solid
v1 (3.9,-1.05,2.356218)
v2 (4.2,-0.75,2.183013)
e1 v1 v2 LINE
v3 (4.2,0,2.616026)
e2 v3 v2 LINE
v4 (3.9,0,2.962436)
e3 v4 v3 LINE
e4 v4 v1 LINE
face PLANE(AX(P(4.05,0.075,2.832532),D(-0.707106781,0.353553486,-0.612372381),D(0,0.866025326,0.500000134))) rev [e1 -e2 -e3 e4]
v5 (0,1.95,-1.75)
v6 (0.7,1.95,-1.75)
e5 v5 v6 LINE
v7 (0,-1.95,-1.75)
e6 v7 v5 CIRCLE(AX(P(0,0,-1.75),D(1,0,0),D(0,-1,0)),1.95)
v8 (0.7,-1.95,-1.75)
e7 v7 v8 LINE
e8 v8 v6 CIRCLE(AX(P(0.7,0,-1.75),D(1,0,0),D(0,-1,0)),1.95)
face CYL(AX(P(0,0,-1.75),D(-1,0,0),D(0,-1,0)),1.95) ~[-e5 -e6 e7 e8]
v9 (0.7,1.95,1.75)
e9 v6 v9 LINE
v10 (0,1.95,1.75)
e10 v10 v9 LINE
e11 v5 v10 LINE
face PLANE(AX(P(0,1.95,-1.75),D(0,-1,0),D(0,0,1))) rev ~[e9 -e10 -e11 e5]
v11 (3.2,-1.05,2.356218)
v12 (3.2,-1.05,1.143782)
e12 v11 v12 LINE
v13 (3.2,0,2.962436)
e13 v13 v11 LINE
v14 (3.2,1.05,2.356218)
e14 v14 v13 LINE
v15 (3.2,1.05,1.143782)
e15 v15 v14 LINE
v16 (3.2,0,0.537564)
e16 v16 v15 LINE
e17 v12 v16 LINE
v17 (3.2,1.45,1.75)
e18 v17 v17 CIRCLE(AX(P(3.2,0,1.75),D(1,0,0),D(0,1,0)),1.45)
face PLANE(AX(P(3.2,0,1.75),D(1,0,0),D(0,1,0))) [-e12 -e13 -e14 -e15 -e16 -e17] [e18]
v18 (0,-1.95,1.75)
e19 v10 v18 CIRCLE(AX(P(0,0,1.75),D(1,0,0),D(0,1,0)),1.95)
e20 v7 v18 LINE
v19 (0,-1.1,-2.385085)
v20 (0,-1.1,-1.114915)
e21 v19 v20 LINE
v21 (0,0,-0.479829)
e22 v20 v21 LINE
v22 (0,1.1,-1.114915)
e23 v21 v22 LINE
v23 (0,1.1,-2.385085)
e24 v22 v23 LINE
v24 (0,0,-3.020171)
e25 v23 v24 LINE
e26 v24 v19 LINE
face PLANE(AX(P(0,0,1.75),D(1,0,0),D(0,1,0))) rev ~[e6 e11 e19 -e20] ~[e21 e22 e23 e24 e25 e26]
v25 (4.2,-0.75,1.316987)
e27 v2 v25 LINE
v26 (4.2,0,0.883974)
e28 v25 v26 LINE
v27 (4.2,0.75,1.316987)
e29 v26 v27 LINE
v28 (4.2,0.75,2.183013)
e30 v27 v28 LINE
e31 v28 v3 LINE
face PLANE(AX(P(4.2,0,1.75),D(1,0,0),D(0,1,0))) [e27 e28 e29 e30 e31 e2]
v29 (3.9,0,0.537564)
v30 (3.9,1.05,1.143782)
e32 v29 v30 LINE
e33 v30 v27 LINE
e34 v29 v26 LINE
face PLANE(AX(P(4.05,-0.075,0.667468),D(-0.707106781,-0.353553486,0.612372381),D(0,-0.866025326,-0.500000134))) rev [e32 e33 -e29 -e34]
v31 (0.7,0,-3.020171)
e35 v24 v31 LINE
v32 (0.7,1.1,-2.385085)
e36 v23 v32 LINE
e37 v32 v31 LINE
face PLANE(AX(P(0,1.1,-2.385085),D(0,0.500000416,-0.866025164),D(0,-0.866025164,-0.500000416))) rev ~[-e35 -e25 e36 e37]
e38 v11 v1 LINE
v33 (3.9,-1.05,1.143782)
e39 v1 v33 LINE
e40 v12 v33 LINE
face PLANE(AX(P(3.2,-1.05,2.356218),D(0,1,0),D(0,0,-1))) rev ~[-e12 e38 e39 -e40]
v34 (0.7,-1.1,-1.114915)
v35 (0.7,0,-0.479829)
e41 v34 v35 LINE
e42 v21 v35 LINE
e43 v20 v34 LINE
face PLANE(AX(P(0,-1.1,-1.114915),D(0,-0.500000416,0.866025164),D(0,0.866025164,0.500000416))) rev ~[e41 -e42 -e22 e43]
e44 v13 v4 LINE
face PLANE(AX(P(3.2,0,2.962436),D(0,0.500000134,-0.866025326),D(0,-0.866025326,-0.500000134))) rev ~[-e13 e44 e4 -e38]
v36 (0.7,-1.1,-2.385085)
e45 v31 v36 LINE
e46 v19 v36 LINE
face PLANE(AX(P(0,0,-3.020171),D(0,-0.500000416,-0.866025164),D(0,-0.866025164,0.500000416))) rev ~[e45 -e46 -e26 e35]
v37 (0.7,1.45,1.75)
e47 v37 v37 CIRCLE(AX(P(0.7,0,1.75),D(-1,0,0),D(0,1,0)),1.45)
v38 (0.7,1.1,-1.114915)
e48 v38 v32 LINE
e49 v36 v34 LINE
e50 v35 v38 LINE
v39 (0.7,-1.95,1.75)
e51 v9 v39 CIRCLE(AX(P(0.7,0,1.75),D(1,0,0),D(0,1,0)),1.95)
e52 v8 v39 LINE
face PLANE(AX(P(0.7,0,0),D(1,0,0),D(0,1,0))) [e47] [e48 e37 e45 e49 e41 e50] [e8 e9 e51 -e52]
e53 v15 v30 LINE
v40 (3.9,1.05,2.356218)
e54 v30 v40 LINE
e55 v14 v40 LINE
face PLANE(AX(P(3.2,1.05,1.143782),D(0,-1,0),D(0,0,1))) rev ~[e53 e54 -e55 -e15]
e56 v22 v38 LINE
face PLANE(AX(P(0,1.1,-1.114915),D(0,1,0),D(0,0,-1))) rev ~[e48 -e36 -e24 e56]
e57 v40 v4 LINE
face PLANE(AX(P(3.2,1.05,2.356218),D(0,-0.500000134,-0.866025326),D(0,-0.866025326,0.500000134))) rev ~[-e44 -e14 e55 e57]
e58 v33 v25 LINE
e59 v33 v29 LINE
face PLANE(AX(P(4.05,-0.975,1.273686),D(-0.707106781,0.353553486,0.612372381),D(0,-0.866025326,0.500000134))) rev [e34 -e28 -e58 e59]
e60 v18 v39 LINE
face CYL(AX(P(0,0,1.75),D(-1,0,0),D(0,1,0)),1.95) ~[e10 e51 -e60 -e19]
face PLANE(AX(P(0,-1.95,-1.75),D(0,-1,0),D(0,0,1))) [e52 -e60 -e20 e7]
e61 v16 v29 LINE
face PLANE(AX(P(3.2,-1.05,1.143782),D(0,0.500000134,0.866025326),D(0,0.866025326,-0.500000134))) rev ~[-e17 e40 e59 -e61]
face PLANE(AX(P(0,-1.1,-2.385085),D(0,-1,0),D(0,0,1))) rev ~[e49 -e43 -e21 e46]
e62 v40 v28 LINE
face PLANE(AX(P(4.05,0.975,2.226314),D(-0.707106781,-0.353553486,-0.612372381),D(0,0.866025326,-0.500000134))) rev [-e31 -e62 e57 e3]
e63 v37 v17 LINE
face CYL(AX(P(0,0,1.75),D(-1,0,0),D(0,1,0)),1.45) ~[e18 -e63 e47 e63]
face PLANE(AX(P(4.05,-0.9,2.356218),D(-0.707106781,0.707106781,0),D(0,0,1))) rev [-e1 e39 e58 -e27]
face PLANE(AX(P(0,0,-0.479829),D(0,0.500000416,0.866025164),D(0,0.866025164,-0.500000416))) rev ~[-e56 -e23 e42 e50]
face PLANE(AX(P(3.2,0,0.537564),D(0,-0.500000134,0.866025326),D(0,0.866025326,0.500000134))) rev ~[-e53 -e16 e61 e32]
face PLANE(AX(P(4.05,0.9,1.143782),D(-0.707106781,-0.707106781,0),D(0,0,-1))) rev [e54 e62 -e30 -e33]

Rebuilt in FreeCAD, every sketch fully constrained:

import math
import FreeCAD as App
import Part
import Sketcher
from FreeCAD import Vector
Q = App.Units.Quantity


def edges_at(feature, points):
    """Names of the edges that pass closest to the given points."""
    edges = feature.Shape.Edges
    near = lambda p: min(range(len(edges)), key=lambda i: edges[i].distToShape(Part.Vertex(*p))[0])
    return sorted({f"Edge{near(p) + 1}" for p in points})


def add_polygon(sketch, points):
    """Adds a closed chain of lines whose ends are joined by coincident constraints."""
    first, n = sketch.GeometryCount, len(points)
    for a, b in zip(points, points[1:] + points[:1]):
        sketch.addGeometry(Part.LineSegment(App.Vector(*a, 0), App.Vector(*b, 0)), False)
    for i in range(n):
        sketch.addConstraint(Sketcher.Constraint("Coincident", first + i, 2, first + (i + 1) % n, 1))

doc = App.newDocument("Part")
body = doc.addObject("PartDesign::Body", "Body")

# Sketch on YZ plane
sketch1 = body.newObject("Sketcher::SketchObject", "Sketch")
sketch1.AttachmentSupport = (doc.getObject("YZ_Plane"), [""])
sketch1.MapMode = "FlatFace"
sketch1.addGeometry([
    Part.LineSegment(Vector(-1.9, 1.8, 0), Vector(-1.9, -1.8, 0)),
    Part.ArcOfCircle(Part.Circle(Vector(0, -1.8, 0), Vector(0, 0, 1), 1.9), math.radians(180), math.radians(360)),
    Part.LineSegment(Vector(1.9, -1.8, 0), Vector(1.9, 1.8, 0)),
    Part.ArcOfCircle(Part.Circle(Vector(0, 1.8, 0), Vector(0, 0, 1), 1.9), math.radians(0), math.radians(180)),
], False)
sketch1.addConstraint([
    Sketcher.Constraint("Tangent", 0, 2, 1, 1),
    Sketcher.Constraint("Tangent", 1, 2, 2, 1),
    Sketcher.Constraint("Tangent", 2, 2, 3, 1),
    Sketcher.Constraint("Tangent", 3, 2, 0, 1),
    Sketcher.Constraint("Vertical", 0),
    Sketcher.Constraint("Vertical", 2),
    Sketcher.Constraint("Symmetric", 1, 3, 3, 3, -1, 1),
    Sketcher.Constraint("Radius", 1, 1.95),
    Sketcher.Constraint("DistanceY", 0, 2, 0, 1, 3.5),
])
pad1 = body.newObject("PartDesign::Pad", "Pad")
pad1.Profile = sketch1
pad1.Length = 0.7

# Sketch on YZ plane
sketch2 = body.newObject("Sketcher::SketchObject", "Sketch001")
sketch2.AttachmentSupport = (doc.getObject("YZ_Plane"), [""])
sketch2.MapMode = "FlatFace"
sketch2.addGeometry(Part.Circle(Vector(0, 1.8, 0), Vector(0, 0, 1), 1.4), False)
sketch2.addConstraint([
    Sketcher.Constraint("PointOnObject", 0, 3, -2),
    Sketcher.Constraint("Diameter", 0, 2.9),
    Sketcher.Constraint("DistanceY", -1, 1, 0, 3, 1.75),
])
pad2 = body.newObject("PartDesign::Pad", "Pad001")
pad2.Profile = sketch2
pad2.Length = 3.2

# Sketch on YZ plane
sketch3 = body.newObject("Sketcher::SketchObject", "Sketch002")
sketch3.AttachmentSupport = (doc.getObject("YZ_Plane"), [""])
sketch3.MapMode = "FlatFace"
sketch3.AttachmentOffset = App.Placement(Vector(0, 0, 3.2), App.Rotation())
add_polygon(sketch3, [(1.1, 1.1), (1.1, 2.4), (0, 3), (-1.1, 2.4), (-1.1, 1.1), (0, 0.5)])  # lines 0-5
sketch3.addConstraint([
    Sketcher.Constraint("Vertical", 0),
    Sketcher.Constraint("Vertical", 3),
    Sketcher.Constraint("Symmetric", 0, 2, 2, 2, -2),
    Sketcher.Constraint("PointOnObject", 1, 2, -2),
    Sketcher.Constraint("PointOnObject", 4, 2, -2),
    Sketcher.Constraint("Parallel", 1, 4),
    Sketcher.Constraint("Parallel", 2, 5),
    Sketcher.Constraint("Angle", 1, Q("149.999991 deg")),
    Sketcher.Constraint("DistanceX", 2, 2, 0, 2, 2.1),
    Sketcher.Constraint("DistanceY", 0, 1, 0, 2, 1.212436),
    Sketcher.Constraint("DistanceY", -1, 1, 0, 2, 2.356218),
])
pad3 = body.newObject("PartDesign::Pad", "Pad002")
pad3.Profile = sketch3
pad3.Length = 1
doc.recompute()

chamfer = body.newObject("PartDesign::Chamfer", "Chamfer")
chamfer.Base = (pad3, edges_at(pad3, [
    (4.2, -0.525, 2.659),
    (4.2, 0.525, 2.659),
    (4.2, 1.05, 1.75),
    (4.2, 0.525, 0.841),
    (4.2, -0.525, 0.841),
    (4.2, -1.05, 1.75),
]))
chamfer.Size = 0.3

# Sketch on YZ plane
sketch4 = body.newObject("Sketcher::SketchObject", "Sketch003")
sketch4.AttachmentSupport = (doc.getObject("YZ_Plane"), [""])
sketch4.MapMode = "FlatFace"
add_polygon(sketch4, [(-1.1, -2.4), (-1.1, -1.1), (0, -0.5), (1.1, -1.1), (1.1, -2.4), (0, -3)])  # lines 0-5
sketch4.addConstraint([
    Sketcher.Constraint("Vertical", 0),
    Sketcher.Constraint("Vertical", 3),
    Sketcher.Constraint("Symmetric", 0, 2, 2, 2, -2),
    Sketcher.Constraint("PointOnObject", 1, 2, -2),
    Sketcher.Constraint("PointOnObject", 4, 2, -2),
    Sketcher.Constraint("Parallel", 1, 4),
    Sketcher.Constraint("Parallel", 2, 5),
    Sketcher.Constraint("DistanceX", 0, 2, -1, 1, 1.1),
    Sketcher.Constraint("DistanceY", 0, 1, 0, 2, 1.27017),
    Sketcher.Constraint("Distance", 1, 1.270171),
    Sketcher.Constraint("DistanceY", 1, 2, -1, 1, 0.479829),
])
pocket1 = body.newObject("PartDesign::Pocket", "Pocket")
pocket1.Profile = sketch4
pocket1.Type = "ThroughAll"
pocket1.Reversed = True

doc.recompute()
